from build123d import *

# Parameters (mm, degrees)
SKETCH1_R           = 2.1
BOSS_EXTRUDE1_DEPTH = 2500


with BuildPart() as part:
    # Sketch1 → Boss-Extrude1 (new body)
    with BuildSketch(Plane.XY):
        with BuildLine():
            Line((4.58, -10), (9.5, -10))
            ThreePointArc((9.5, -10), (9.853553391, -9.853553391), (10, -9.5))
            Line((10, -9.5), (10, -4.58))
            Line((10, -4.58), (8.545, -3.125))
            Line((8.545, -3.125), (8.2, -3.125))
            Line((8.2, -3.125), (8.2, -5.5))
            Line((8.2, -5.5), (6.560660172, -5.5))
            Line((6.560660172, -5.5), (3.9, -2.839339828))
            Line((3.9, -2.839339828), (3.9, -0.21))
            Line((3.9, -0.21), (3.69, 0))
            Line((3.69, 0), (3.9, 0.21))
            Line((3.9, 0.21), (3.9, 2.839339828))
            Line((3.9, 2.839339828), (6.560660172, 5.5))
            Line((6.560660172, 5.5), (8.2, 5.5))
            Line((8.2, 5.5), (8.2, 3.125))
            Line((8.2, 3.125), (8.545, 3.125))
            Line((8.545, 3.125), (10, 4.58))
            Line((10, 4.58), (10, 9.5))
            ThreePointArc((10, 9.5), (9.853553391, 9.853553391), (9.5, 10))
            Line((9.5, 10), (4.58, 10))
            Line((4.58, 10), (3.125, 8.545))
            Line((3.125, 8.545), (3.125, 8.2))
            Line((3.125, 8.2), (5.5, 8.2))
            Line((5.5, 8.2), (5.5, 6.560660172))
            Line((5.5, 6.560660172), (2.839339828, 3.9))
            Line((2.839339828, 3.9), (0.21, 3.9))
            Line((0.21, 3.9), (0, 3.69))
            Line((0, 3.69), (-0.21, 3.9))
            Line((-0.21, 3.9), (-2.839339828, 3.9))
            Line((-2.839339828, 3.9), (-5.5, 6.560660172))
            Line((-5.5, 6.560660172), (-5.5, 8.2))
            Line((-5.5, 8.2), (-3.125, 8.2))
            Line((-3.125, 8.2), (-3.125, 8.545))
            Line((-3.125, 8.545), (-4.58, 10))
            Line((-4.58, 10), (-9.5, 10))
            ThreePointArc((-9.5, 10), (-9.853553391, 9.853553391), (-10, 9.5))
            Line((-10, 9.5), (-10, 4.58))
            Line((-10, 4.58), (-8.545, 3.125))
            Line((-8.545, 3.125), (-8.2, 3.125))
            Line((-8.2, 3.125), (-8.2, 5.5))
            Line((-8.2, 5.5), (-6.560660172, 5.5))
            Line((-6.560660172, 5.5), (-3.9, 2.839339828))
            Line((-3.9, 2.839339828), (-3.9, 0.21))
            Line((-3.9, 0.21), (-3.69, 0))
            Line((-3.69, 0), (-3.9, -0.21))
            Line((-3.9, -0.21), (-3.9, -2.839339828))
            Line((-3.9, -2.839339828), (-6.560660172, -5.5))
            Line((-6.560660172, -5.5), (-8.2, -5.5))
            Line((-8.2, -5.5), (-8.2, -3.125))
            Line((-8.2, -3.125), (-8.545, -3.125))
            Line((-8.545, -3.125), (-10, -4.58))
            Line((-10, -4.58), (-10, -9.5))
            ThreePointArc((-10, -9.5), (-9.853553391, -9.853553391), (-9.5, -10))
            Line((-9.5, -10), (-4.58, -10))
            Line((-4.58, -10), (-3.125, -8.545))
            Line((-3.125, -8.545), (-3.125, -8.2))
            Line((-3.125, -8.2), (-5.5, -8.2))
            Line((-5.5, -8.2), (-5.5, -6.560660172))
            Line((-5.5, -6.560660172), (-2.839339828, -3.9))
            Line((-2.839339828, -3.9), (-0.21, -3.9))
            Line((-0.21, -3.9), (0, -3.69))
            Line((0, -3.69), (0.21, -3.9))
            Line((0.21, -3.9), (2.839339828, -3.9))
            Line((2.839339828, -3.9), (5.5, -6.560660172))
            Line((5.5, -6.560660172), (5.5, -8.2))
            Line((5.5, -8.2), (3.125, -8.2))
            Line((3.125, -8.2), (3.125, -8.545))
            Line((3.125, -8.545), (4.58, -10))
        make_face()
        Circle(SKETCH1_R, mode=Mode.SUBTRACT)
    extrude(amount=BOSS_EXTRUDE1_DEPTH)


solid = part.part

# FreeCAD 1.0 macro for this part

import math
import FreeCAD as App
import Part
import Sketcher
Q = App.Units.Quantity

doc = App.newDocument("Part")
body = doc.addObject("PartDesign::Body", "Body")

# Sketch on XY plane
sketch1 = body.newObject("Sketcher::SketchObject", "Sketch")
sketch1.AttachmentSupport = (doc.getObject("XY_Plane"), [""])
sketch1.MapMode = "FlatFace"
sketch1.addGeometry([
    Part.LineSegment(App.Vector(4.58, -10, 0), App.Vector(9.5, -10, 0)),  # 0
    Part.ArcOfCircle(Part.Circle(App.Vector(9.5, -9.5, 0), App.Vector(0, 0, 1), 0.5), math.radians(-90), math.radians(0)),  # 1
    Part.LineSegment(App.Vector(10, -9.5, 0), App.Vector(10, -4.58, 0)),  # 2
    Part.LineSegment(App.Vector(10, -4.58, 0), App.Vector(8.54, -3.12, 0)),  # 3
    Part.LineSegment(App.Vector(8.54, -3.12, 0), App.Vector(8.2, -3.12, 0)),  # 4
    Part.LineSegment(App.Vector(8.2, -3.12, 0), App.Vector(8.2, -5.5, 0)),  # 5
    Part.LineSegment(App.Vector(8.2, -5.5, 0), App.Vector(6.56, -5.5, 0)),  # 6
    Part.LineSegment(App.Vector(6.56, -5.5, 0), App.Vector(3.9, -2.84, 0)),  # 7
    Part.LineSegment(App.Vector(3.9, -2.84, 0), App.Vector(3.9, -0.21, 0)),  # 8
    Part.LineSegment(App.Vector(3.9, -0.21, 0), App.Vector(3.69, 0, 0)),  # 9
    Part.LineSegment(App.Vector(3.69, 0, 0), App.Vector(3.9, 0.21, 0)),  # 10
    Part.LineSegment(App.Vector(3.9, 0.21, 0), App.Vector(3.9, 2.84, 0)),  # 11
    Part.LineSegment(App.Vector(3.9, 2.84, 0), App.Vector(6.56, 5.5, 0)),  # 12
    Part.LineSegment(App.Vector(6.56, 5.5, 0), App.Vector(8.2, 5.5, 0)),  # 13
    Part.LineSegment(App.Vector(8.2, 5.5, 0), App.Vector(8.2, 3.12, 0)),  # 14
    Part.LineSegment(App.Vector(8.2, 3.12, 0), App.Vector(8.54, 3.12, 0)),  # 15
    Part.LineSegment(App.Vector(8.54, 3.12, 0), App.Vector(10, 4.58, 0)),  # 16
    Part.LineSegment(App.Vector(10, 4.58, 0), App.Vector(10, 9.5, 0)),  # 17
    Part.ArcOfCircle(Part.Circle(App.Vector(9.5, 9.5, 0), App.Vector(0, 0, 1), 0.5), math.radians(0), math.radians(90)),  # 18
    Part.LineSegment(App.Vector(9.5, 10, 0), App.Vector(4.58, 10, 0)),  # 19
    Part.LineSegment(App.Vector(4.58, 10, 0), App.Vector(3.12, 8.54, 0)),  # 20
    Part.LineSegment(App.Vector(3.12, 8.54, 0), App.Vector(3.12, 8.2, 0)),  # 21
    Part.LineSegment(App.Vector(3.12, 8.2, 0), App.Vector(5.5, 8.2, 0)),  # 22
    Part.LineSegment(App.Vector(5.5, 8.2, 0), App.Vector(5.5, 6.56, 0)),  # 23
    Part.LineSegment(App.Vector(5.5, 6.56, 0), App.Vector(2.84, 3.9, 0)),  # 24
    Part.LineSegment(App.Vector(2.84, 3.9, 0), App.Vector(0.21, 3.9, 0)),  # 25
    Part.LineSegment(App.Vector(0.21, 3.9, 0), App.Vector(0, 3.69, 0)),  # 26
    Part.LineSegment(App.Vector(0, 3.69, 0), App.Vector(-0.21, 3.9, 0)),  # 27
    Part.LineSegment(App.Vector(-0.21, 3.9, 0), App.Vector(-2.84, 3.9, 0)),  # 28
    Part.LineSegment(App.Vector(-2.84, 3.9, 0), App.Vector(-5.5, 6.56, 0)),  # 29
    Part.LineSegment(App.Vector(-5.5, 6.56, 0), App.Vector(-5.5, 8.2, 0)),  # 30
    Part.LineSegment(App.Vector(-5.5, 8.2, 0), App.Vector(-3.12, 8.2, 0)),  # 31
    Part.LineSegment(App.Vector(-3.12, 8.2, 0), App.Vector(-3.12, 8.54, 0)),  # 32
    Part.LineSegment(App.Vector(-3.12, 8.54, 0), App.Vector(-4.58, 10, 0)),  # 33
    Part.LineSegment(App.Vector(-4.58, 10, 0), App.Vector(-9.5, 10, 0)),  # 34
    Part.ArcOfCircle(Part.Circle(App.Vector(-9.5, 9.5, 0), App.Vector(0, 0, 1), 0.5), math.radians(90), math.radians(180)),  # 35
    Part.LineSegment(App.Vector(-10, 9.5, 0), App.Vector(-10, 4.58, 0)),  # 36
    Part.LineSegment(App.Vector(-10, 4.58, 0), App.Vector(-8.54, 3.12, 0)),  # 37
    Part.LineSegment(App.Vector(-8.54, 3.12, 0), App.Vector(-8.2, 3.12, 0)),  # 38
    Part.LineSegment(App.Vector(-8.2, 3.12, 0), App.Vector(-8.2, 5.5, 0)),  # 39
    Part.LineSegment(App.Vector(-8.2, 5.5, 0), App.Vector(-6.56, 5.5, 0)),  # 40
    Part.LineSegment(App.Vector(-6.56, 5.5, 0), App.Vector(-3.9, 2.84, 0)),  # 41
    Part.LineSegment(App.Vector(-3.9, 2.84, 0), App.Vector(-3.9, 0.21, 0)),  # 42
    Part.LineSegment(App.Vector(-3.9, 0.21, 0), App.Vector(-3.69, 0, 0)),  # 43
    Part.LineSegment(App.Vector(-3.69, 0, 0), App.Vector(-3.9, -0.21, 0)),  # 44
    Part.LineSegment(App.Vector(-3.9, -0.21, 0), App.Vector(-3.9, -2.84, 0)),  # 45
    Part.LineSegment(App.Vector(-3.9, -2.84, 0), App.Vector(-6.56, -5.5, 0)),  # 46
    Part.LineSegment(App.Vector(-6.56, -5.5, 0), App.Vector(-8.2, -5.5, 0)),  # 47
    Part.LineSegment(App.Vector(-8.2, -5.5, 0), App.Vector(-8.2, -3.12, 0)),  # 48
    Part.LineSegment(App.Vector(-8.2, -3.12, 0), App.Vector(-8.54, -3.12, 0)),  # 49
    Part.LineSegment(App.Vector(-8.54, -3.12, 0), App.Vector(-10, -4.58, 0)),  # 50
    Part.LineSegment(App.Vector(-10, -4.58, 0), App.Vector(-10, -9.5, 0)),  # 51
    Part.ArcOfCircle(Part.Circle(App.Vector(-9.5, -9.5, 0), App.Vector(0, 0, 1), 0.5), math.radians(180), math.radians(270)),  # 52
    Part.LineSegment(App.Vector(-9.5, -10, 0), App.Vector(-4.58, -10, 0)),  # 53
    Part.LineSegment(App.Vector(-4.58, -10, 0), App.Vector(-3.12, -8.54, 0)),  # 54
    Part.LineSegment(App.Vector(-3.12, -8.54, 0), App.Vector(-3.12, -8.2, 0)),  # 55
    Part.LineSegment(App.Vector(-3.12, -8.2, 0), App.Vector(-5.5, -8.2, 0)),  # 56
    Part.LineSegment(App.Vector(-5.5, -8.2, 0), App.Vector(-5.5, -6.56, 0)),  # 57
    Part.LineSegment(App.Vector(-5.5, -6.56, 0), App.Vector(-2.84, -3.9, 0)),  # 58
    Part.LineSegment(App.Vector(-2.84, -3.9, 0), App.Vector(-0.21, -3.9, 0)),  # 59
    Part.LineSegment(App.Vector(-0.21, -3.9, 0), App.Vector(0, -3.69, 0)),  # 60
    Part.LineSegment(App.Vector(0, -3.69, 0), App.Vector(0.21, -3.9, 0)),  # 61
    Part.LineSegment(App.Vector(0.21, -3.9, 0), App.Vector(2.84, -3.9, 0)),  # 62
    Part.LineSegment(App.Vector(2.84, -3.9, 0), App.Vector(5.5, -6.56, 0)),  # 63
    Part.LineSegment(App.Vector(5.5, -6.56, 0), App.Vector(5.5, -8.2, 0)),  # 64
    Part.LineSegment(App.Vector(5.5, -8.2, 0), App.Vector(3.12, -8.2, 0)),  # 65
    Part.LineSegment(App.Vector(3.12, -8.2, 0), App.Vector(3.12, -8.54, 0)),  # 66
    Part.LineSegment(App.Vector(3.12, -8.54, 0), App.Vector(4.58, -10, 0)),  # 67
    Part.Circle(App.Vector(0, 0, 0), App.Vector(0, 0, 1), 2.1),  # 68
], False)
sketch1.addConstraint([
    Sketcher.Constraint("Tangent", 0, 2, 1, 1),
    Sketcher.Constraint("Tangent", 1, 2, 2, 1),
    Sketcher.Constraint("Coincident", 2, 2, 3, 1),
    Sketcher.Constraint("Coincident", 3, 2, 4, 1),
    Sketcher.Constraint("Coincident", 4, 2, 5, 1),
    Sketcher.Constraint("Coincident", 5, 2, 6, 1),
    Sketcher.Constraint("Coincident", 6, 2, 7, 1),
    Sketcher.Constraint("Coincident", 7, 2, 8, 1),
    Sketcher.Constraint("Coincident", 8, 2, 9, 1),
    Sketcher.Constraint("Coincident", 9, 2, 10, 1),
    Sketcher.Constraint("Coincident", 10, 2, 11, 1),
    Sketcher.Constraint("Coincident", 11, 2, 12, 1),
    Sketcher.Constraint("Coincident", 12, 2, 13, 1),
    Sketcher.Constraint("Coincident", 13, 2, 14, 1),
    Sketcher.Constraint("Coincident", 14, 2, 15, 1),
    Sketcher.Constraint("Coincident", 15, 2, 16, 1),
    Sketcher.Constraint("Coincident", 16, 2, 17, 1),
    Sketcher.Constraint("Tangent", 17, 2, 18, 1),
    Sketcher.Constraint("Tangent", 18, 2, 19, 1),
    Sketcher.Constraint("Coincident", 19, 2, 20, 1),
    Sketcher.Constraint("Coincident", 20, 2, 21, 1),
    Sketcher.Constraint("Coincident", 21, 2, 22, 1),
    Sketcher.Constraint("Coincident", 22, 2, 23, 1),
    Sketcher.Constraint("Coincident", 23, 2, 24, 1),
    Sketcher.Constraint("Coincident", 24, 2, 25, 1),
    Sketcher.Constraint("Coincident", 25, 2, 26, 1),
    Sketcher.Constraint("Coincident", 26, 2, 27, 1),
    Sketcher.Constraint("Coincident", 27, 2, 28, 1),
    Sketcher.Constraint("Coincident", 28, 2, 29, 1),
    Sketcher.Constraint("Coincident", 29, 2, 30, 1),
    Sketcher.Constraint("Coincident", 30, 2, 31, 1),
    Sketcher.Constraint("Coincident", 31, 2, 32, 1),
    Sketcher.Constraint("Coincident", 32, 2, 33, 1),
    Sketcher.Constraint("Coincident", 33, 2, 34, 1),
    Sketcher.Constraint("Tangent", 34, 2, 35, 1),
    Sketcher.Constraint("Tangent", 35, 2, 36, 1),
    Sketcher.Constraint("Coincident", 36, 2, 37, 1),
    Sketcher.Constraint("Coincident", 37, 2, 38, 1),
    Sketcher.Constraint("Coincident", 38, 2, 39, 1),
    Sketcher.Constraint("Coincident", 39, 2, 40, 1),
    Sketcher.Constraint("Coincident", 40, 2, 41, 1),
    Sketcher.Constraint("Coincident", 41, 2, 42, 1),
    Sketcher.Constraint("Coincident", 42, 2, 43, 1),
    Sketcher.Constraint("Coincident", 43, 2, 44, 1),
    Sketcher.Constraint("Coincident", 44, 2, 45, 1),
    Sketcher.Constraint("Coincident", 45, 2, 46, 1),
    Sketcher.Constraint("Coincident", 46, 2, 47, 1),
    Sketcher.Constraint("Coincident", 47, 2, 48, 1),
    Sketcher.Constraint("Coincident", 48, 2, 49, 1),
    Sketcher.Constraint("Coincident", 49, 2, 50, 1),
    Sketcher.Constraint("Coincident", 50, 2, 51, 1),
    Sketcher.Constraint("Tangent", 51, 2, 52, 1),
    Sketcher.Constraint("Tangent", 52, 2, 53, 1),
    Sketcher.Constraint("Coincident", 53, 2, 54, 1),
    Sketcher.Constraint("Coincident", 54, 2, 55, 1),
    Sketcher.Constraint("Coincident", 55, 2, 56, 1),
    Sketcher.Constraint("Coincident", 56, 2, 57, 1),
    Sketcher.Constraint("Coincident", 57, 2, 58, 1),
    Sketcher.Constraint("Coincident", 58, 2, 59, 1),
    Sketcher.Constraint("Coincident", 59, 2, 60, 1),
    Sketcher.Constraint("Coincident", 60, 2, 61, 1),
    Sketcher.Constraint("Coincident", 61, 2, 62, 1),
    Sketcher.Constraint("Coincident", 62, 2, 63, 1),
    Sketcher.Constraint("Coincident", 63, 2, 64, 1),
    Sketcher.Constraint("Coincident", 64, 2, 65, 1),
    Sketcher.Constraint("Coincident", 65, 2, 66, 1),
    Sketcher.Constraint("Coincident", 66, 2, 67, 1),
    Sketcher.Constraint("Coincident", 67, 2, 0, 1),
    Sketcher.Constraint("Horizontal", 0),
    Sketcher.Constraint("Vertical", 2),
    Sketcher.Constraint("Horizontal", 4),
    Sketcher.Constraint("Vertical", 5),
    Sketcher.Constraint("Horizontal", 6),
    Sketcher.Constraint("Vertical", 8),
    Sketcher.Constraint("Vertical", 11),
    Sketcher.Constraint("Horizontal", 13),
    Sketcher.Constraint("Vertical", 14),
    Sketcher.Constraint("Horizontal", 15),
    Sketcher.Constraint("Vertical", 17),
    Sketcher.Constraint("Horizontal", 19),
    Sketcher.Constraint("Vertical", 21),
    Sketcher.Constraint("Horizontal", 22),
    Sketcher.Constraint("Vertical", 23),
    Sketcher.Constraint("Horizontal", 25),
    Sketcher.Constraint("Horizontal", 28),
    Sketcher.Constraint("Vertical", 30),
    Sketcher.Constraint("Horizontal", 31),
    Sketcher.Constraint("Vertical", 32),
    Sketcher.Constraint("Horizontal", 34),
    Sketcher.Constraint("Vertical", 36),
    Sketcher.Constraint("Horizontal", 38),
    Sketcher.Constraint("Vertical", 39),
    Sketcher.Constraint("Horizontal", 40),
    Sketcher.Constraint("Vertical", 42),
    Sketcher.Constraint("Vertical", 45),
    Sketcher.Constraint("Horizontal", 47),
    Sketcher.Constraint("Vertical", 48),
    Sketcher.Constraint("Horizontal", 49),
    Sketcher.Constraint("Vertical", 51),
    Sketcher.Constraint("Horizontal", 53),
    Sketcher.Constraint("Vertical", 55),
    Sketcher.Constraint("Horizontal", 56),
    Sketcher.Constraint("Vertical", 57),
    Sketcher.Constraint("Horizontal", 59),
    Sketcher.Constraint("Horizontal", 62),
    Sketcher.Constraint("Vertical", 64),
    Sketcher.Constraint("Horizontal", 65),
    Sketcher.Constraint("Vertical", 66),
    Sketcher.Constraint("Coincident", 68, 3, -1, 1),
    Sketcher.Constraint("Equal", 1, 18),
    Sketcher.Constraint("Equal", 18, 35),
    Sketcher.Constraint("Equal", 35, 52),
    Sketcher.Constraint("Symmetric", 1, 3, 35, 3, -1, 1),
    Sketcher.Constraint("Symmetric", 18, 3, 52, 3, -1, 1),
    Sketcher.Constraint("Symmetric", 3, 2, 37, 2, -1, 1),
    Sketcher.Constraint("Symmetric", 5, 2, 39, 2, -1, 1),
    Sketcher.Constraint("Symmetric", 7, 2, 41, 2, -1, 1),
    Sketcher.Constraint("Symmetric", 9, 2, 43, 2, -1, 1),
    Sketcher.Constraint("Symmetric", 10, 2, 44, 2, -1, 1),
    Sketcher.Constraint("Symmetric", 12, 2, 46, 2, -1, 1),
    Sketcher.Constraint("Symmetric", 14, 2, 48, 2, -1, 1),
    Sketcher.Constraint("Symmetric", 20, 2, 54, 2, -1, 1),
    Sketcher.Constraint("Symmetric", 22, 2, 56, 2, -1, 1),
    Sketcher.Constraint("Symmetric", 24, 2, 58, 2, -1, 1),
    Sketcher.Constraint("Symmetric", 26, 2, 60, 2, -1, 1),
    Sketcher.Constraint("Symmetric", 27, 2, 61, 2, -1, 1),
    Sketcher.Constraint("Symmetric", 29, 2, 63, 2, -1, 1),
    Sketcher.Constraint("Symmetric", 31, 2, 65, 2, -1, 1),
    Sketcher.Constraint("Symmetric", 18, 3, 35, 3, -2),
    Sketcher.Constraint("Symmetric", 25, 2, 27, 2, -2),
    Sketcher.Constraint("Symmetric", 23, 2, 29, 2, -2),
    Sketcher.Constraint("Symmetric", 21, 2, 31, 2, -2),
    Sketcher.Constraint("Symmetric", 15, 2, 37, 2, -2),
    Sketcher.Constraint("Symmetric", 13, 2, 39, 2, -2),
    Sketcher.Constraint("Symmetric", 11, 2, 41, 2, -2),
    Sketcher.Constraint("PointOnObject", 9, 2, -1),
    Sketcher.Constraint("PointOnObject", 26, 2, -2),
    Sketcher.Constraint("Parallel", 3, 7),
    Sketcher.Constraint("Parallel", 7, 9),
    Sketcher.Constraint("Perpendicular", 9, 10),
    Sketcher.Constraint("Parallel", 10, 12),
    Sketcher.Constraint("Parallel", 12, 16),
    Sketcher.Constraint("Parallel", 16, 20),
    Sketcher.Constraint("Parallel", 20, 24),
    Sketcher.Constraint("Parallel", 24, 26),
    Sketcher.Constraint("Perpendicular", 26, 27),
    Sketcher.Constraint("Parallel", 27, 29),
    Sketcher.Constraint("Parallel", 29, 33),
    Sketcher.Constraint("Parallel", 33, 37),
    Sketcher.Constraint("Parallel", 37, 41),
    Sketcher.Constraint("Parallel", 41, 43),
    Sketcher.Constraint("Parallel", 44, 46),
    Sketcher.Constraint("Parallel", 46, 50),
    Sketcher.Constraint("Parallel", 50, 54),
    Sketcher.Constraint("Parallel", 54, 58),
    Sketcher.Constraint("Parallel", 58, 60),
    Sketcher.Constraint("Parallel", 61, 63),
    Sketcher.Constraint("Parallel", 63, 67),
    Sketcher.Constraint("Horizontal", 20, 2, 32, 2),
    Sketcher.Constraint("Horizontal", 2, 2, 50, 2),
    Sketcher.Constraint("Horizontal", 54, 2, 66, 2),
    Sketcher.Constraint("Equal", 53, 2),
    Sketcher.Constraint("Equal", 65, 5),
    Sketcher.Constraint("Equal", 62, 8),
    Sketcher.Constraint("Equal", 49, 21),
    Sketcher.Constraint("Equal", 47, 23),
    Sketcher.Constraint("Equal", 16, 20),
    Sketcher.Constraint("Equal", 12, 24),
    Sketcher.Constraint("Equal", 10, 26),
    Sketcher.Constraint("Diameter", 68, Q("4.2 mm")),
    Sketcher.Constraint("Radius", 1, Q("0.5 mm")),
    Sketcher.Constraint("DistanceY", 0, 2, -1, 1, Q("10 mm")),
    Sketcher.Constraint("DistanceX", 0, 1, 0, 2, Q("4.92 mm")),
    Sketcher.Constraint("DistanceX", -1, 1, 4, 2, Q("8.2 mm")),
    Sketcher.Constraint("DistanceY", 5, 2, -1, 1, Q("5.5 mm")),
    Sketcher.Constraint("DistanceX", -1, 1, 7, 2, Q("3.9 mm")),
    Sketcher.Constraint("DistanceX", 4, 2, 4, 1, Q("0.345 mm")),
    Sketcher.Constraint("DistanceY", 8, 2, -1, 1, Q("0.21 mm")),
    Sketcher.Constraint("DistanceX", 6, 2, 6, 1, Q("1.63934 mm")),
])
pad1 = body.newObject("PartDesign::Pad", "Pad")
pad1.Profile = sketch1
pad1.Length = 2500

doc.recompute()
